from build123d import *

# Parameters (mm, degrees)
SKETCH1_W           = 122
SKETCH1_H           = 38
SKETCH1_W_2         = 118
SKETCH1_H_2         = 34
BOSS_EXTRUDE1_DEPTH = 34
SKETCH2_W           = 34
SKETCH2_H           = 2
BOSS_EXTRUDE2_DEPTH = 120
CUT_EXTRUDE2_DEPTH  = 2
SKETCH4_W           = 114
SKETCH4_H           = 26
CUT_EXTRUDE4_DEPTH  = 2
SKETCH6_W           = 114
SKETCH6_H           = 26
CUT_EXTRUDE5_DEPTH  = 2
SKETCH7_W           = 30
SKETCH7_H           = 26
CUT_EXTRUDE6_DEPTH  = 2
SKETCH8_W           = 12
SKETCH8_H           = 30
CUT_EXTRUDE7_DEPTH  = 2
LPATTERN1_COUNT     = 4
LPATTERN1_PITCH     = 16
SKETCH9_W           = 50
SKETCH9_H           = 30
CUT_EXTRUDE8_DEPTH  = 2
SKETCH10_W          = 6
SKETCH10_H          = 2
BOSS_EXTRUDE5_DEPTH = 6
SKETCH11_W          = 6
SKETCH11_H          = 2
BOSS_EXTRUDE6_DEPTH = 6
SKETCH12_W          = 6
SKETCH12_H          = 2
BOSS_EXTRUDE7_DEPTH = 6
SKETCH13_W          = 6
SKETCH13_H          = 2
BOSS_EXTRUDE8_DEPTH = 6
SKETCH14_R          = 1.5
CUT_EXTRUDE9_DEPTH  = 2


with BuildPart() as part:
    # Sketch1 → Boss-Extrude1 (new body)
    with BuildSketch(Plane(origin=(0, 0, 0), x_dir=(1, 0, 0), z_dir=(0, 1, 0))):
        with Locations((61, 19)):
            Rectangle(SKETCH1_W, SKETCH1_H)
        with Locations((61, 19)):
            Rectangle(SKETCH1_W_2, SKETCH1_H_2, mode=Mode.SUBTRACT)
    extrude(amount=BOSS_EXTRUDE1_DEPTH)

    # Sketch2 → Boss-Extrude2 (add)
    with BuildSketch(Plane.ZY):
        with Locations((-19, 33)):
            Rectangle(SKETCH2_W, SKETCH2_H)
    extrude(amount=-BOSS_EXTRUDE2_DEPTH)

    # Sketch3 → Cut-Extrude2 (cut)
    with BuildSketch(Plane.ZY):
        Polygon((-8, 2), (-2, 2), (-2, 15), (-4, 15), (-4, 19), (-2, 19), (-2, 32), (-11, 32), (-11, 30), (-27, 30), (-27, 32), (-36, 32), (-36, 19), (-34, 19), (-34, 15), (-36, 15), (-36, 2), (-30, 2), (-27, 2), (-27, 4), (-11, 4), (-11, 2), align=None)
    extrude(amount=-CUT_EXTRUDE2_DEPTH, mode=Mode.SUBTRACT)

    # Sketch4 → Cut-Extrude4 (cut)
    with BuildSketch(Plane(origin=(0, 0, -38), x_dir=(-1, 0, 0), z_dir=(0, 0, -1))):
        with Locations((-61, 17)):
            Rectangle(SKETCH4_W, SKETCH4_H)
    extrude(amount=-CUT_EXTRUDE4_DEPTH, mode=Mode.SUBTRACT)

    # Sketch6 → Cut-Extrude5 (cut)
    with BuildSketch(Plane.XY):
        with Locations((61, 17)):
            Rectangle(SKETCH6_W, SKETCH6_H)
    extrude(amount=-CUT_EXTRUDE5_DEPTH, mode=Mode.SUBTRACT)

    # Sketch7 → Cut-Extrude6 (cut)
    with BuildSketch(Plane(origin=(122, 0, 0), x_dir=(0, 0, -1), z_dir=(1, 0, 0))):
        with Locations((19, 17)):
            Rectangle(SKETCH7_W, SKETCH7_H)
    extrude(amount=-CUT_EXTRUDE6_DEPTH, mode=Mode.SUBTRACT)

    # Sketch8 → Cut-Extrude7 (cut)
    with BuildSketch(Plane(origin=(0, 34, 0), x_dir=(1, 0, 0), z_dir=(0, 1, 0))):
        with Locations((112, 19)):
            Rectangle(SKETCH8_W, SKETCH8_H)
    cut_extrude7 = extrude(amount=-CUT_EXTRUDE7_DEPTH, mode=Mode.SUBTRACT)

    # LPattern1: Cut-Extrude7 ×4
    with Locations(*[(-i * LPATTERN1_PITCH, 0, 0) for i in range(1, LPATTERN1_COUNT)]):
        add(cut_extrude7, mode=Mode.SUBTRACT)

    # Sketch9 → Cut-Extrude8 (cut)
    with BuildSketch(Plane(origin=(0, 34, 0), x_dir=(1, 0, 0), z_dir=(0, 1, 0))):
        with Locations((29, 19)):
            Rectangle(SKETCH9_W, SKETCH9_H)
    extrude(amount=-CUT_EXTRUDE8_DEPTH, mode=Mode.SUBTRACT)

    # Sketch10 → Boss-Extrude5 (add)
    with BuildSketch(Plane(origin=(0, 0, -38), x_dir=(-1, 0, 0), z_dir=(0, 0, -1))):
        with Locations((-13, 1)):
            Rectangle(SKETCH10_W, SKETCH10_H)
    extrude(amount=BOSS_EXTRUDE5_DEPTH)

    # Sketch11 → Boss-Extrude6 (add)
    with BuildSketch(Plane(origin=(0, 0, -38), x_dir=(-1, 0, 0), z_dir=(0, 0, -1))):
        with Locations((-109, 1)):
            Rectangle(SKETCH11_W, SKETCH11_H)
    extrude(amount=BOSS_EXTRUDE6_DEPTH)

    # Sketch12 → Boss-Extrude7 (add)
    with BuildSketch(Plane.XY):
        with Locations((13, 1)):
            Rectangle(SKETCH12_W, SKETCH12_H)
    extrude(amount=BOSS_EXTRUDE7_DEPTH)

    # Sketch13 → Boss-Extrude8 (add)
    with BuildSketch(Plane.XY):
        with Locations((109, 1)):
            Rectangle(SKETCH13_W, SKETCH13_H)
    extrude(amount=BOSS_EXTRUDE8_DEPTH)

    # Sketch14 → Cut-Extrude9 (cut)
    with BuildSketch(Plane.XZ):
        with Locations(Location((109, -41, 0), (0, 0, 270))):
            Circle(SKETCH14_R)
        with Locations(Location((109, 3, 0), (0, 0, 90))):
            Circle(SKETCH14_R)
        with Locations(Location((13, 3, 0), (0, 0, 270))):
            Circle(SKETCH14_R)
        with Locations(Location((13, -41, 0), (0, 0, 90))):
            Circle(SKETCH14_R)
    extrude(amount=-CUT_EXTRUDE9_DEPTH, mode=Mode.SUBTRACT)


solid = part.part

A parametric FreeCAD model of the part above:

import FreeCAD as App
import Part
import Sketcher

V = App.Vector
Q = App.Units.Quantity


def add_polygon(sketch, points):
    """Adds a closed chain of lines whose ends are joined by coincident constraints."""
    first, n = sketch.GeometryCount, len(points)
    for a, b in zip(points, points[1:] + points[:1]):
        sketch.addGeometry(Part.LineSegment(App.Vector(*a, 0), App.Vector(*b, 0)), False)
    for i in range(n):
        sketch.addConstraint(Sketcher.Constraint("Coincident", first + i, 2, first + (i + 1) % n, 1))

doc = App.newDocument("Part")
body = doc.addObject("PartDesign::Body", "Body")

# Sketch on XZ plane
sketch1 = doc.addObject("Sketcher::SketchObject", "Sketch")
body.addObject(sketch1)
sketch1.AttachmentSupport = (doc.XZ_Plane, [""])
sketch1.MapMode = "FlatFace"
add_polygon(sketch1, [(0, -38), (0, 0), (122, 0), (122, -38)])  # lines 0-3
add_polygon(sketch1, [(120, -2), (2, -2), (2, -36), (120, -36)])  # lines 4-7
sketch1.addConstraint(Sketcher.Constraint("Vertical", 0))
sketch1.addConstraint(Sketcher.Constraint("Horizontal", 1))
sketch1.addConstraint(Sketcher.Constraint("Vertical", 2))
sketch1.addConstraint(Sketcher.Constraint("Horizontal", 3))
sketch1.addConstraint(Sketcher.Constraint("Horizontal", 4))
sketch1.addConstraint(Sketcher.Constraint("Vertical", 5))
sketch1.addConstraint(Sketcher.Constraint("Horizontal", 6))
sketch1.addConstraint(Sketcher.Constraint("Vertical", 7))
sketch1.addConstraint(Sketcher.Constraint("Coincident", 0, 2, -1, 1))
sketch1.addConstraint(Sketcher.Constraint("DistanceX", 1, 1, 1, 2, Q("122 mm")))
sketch1.addConstraint(Sketcher.Constraint("DistanceX", 4, 2, 4, 1, Q("118 mm")))
sketch1.addConstraint(Sketcher.Constraint("DistanceY", 0, 1, 0, 2, Q("38 mm")))
sketch1.addConstraint(Sketcher.Constraint("DistanceY", 5, 2, 5, 1, Q("34 mm")))
sketch1.addConstraint(Sketcher.Constraint("DistanceX", -1, 1, 4, 2, Q("2 mm")))
sketch1.addConstraint(Sketcher.Constraint("DistanceY", 4, 2, -1, 1, Q("2 mm")))
pad1 = doc.addObject("PartDesign::Pad", "Pad")
body.addObject(pad1)
pad1.Profile = sketch1
pad1.Length = 34
pad1.Reversed = True

# Sketch on YZ plane
sketch2 = doc.addObject("Sketcher::SketchObject", "Sketch001")
body.addObject(sketch2)
sketch2.AttachmentSupport = (doc.YZ_Plane, [""])
sketch2.MapMode = "FlatFace"
add_polygon(sketch2, [(34, -36), (32, -36), (32, -2), (34, -2)])  # lines 0-3
sketch2.addConstraint(Sketcher.Constraint("Horizontal", 0))
sketch2.addConstraint(Sketcher.Constraint("Vertical", 1))
sketch2.addConstraint(Sketcher.Constraint("Horizontal", 2))
sketch2.addConstraint(Sketcher.Constraint("Vertical", 3))
sketch2.addConstraint(Sketcher.Constraint("DistanceX", 0, 2, 0, 1, Q("2 mm")))
sketch2.addConstraint(Sketcher.Constraint("DistanceY", 1, 1, 1, 2, Q("34 mm")))
sketch2.addConstraint(Sketcher.Constraint("DistanceX", -1, 1, 0, 2, Q("32 mm")))
sketch2.addConstraint(Sketcher.Constraint("DistanceY", 0, 2, -1, 1, Q("36 mm")))
pad2 = doc.addObject("PartDesign::Pad", "Pad001")
body.addObject(pad2)
pad2.Profile = sketch2
pad2.Length = 120

# Sketch on YZ plane
sketch3 = doc.addObject("Sketcher::SketchObject", "Sketch002")
body.addObject(sketch3)
sketch3.AttachmentSupport = (doc.YZ_Plane, [""])
sketch3.MapMode = "FlatFace"
add_polygon(sketch3, [(2, -2), (15, -2), (15, -4), (19, -4), (19, -2), (32, -2), (32, -11), (30, -11), (30, -27), (32, -27), (32, -36), (19, -36), (19, -34), (15, -34), (15, -36), (2, -36), (2, -27), (4, -27), (4, -11), (2, -11)])  # lines 0-19
sketch3.addConstraint(Sketcher.Constraint("Horizontal", 0))
sketch3.addConstraint(Sketcher.Constraint("Vertical", 1))
sketch3.addConstraint(Sketcher.Constraint("Horizontal", 2))
sketch3.addConstraint(Sketcher.Constraint("Vertical", 3))
sketch3.addConstraint(Sketcher.Constraint("Horizontal", 4))
sketch3.addConstraint(Sketcher.Constraint("Vertical", 5))
sketch3.addConstraint(Sketcher.Constraint("Horizontal", 6))
sketch3.addConstraint(Sketcher.Constraint("Vertical", 7))
sketch3.addConstraint(Sketcher.Constraint("Horizontal", 8))
sketch3.addConstraint(Sketcher.Constraint("Vertical", 9))
sketch3.addConstraint(Sketcher.Constraint("Horizontal", 10))
sketch3.addConstraint(Sketcher.Constraint("Vertical", 11))
sketch3.addConstraint(Sketcher.Constraint("Horizontal", 12))
sketch3.addConstraint(Sketcher.Constraint("Vertical", 13))
sketch3.addConstraint(Sketcher.Constraint("Horizontal", 14))
sketch3.addConstraint(Sketcher.Constraint("Vertical", 15))
sketch3.addConstraint(Sketcher.Constraint("Horizontal", 16))
sketch3.addConstraint(Sketcher.Constraint("Vertical", 17))
sketch3.addConstraint(Sketcher.Constraint("Horizontal", 18))
sketch3.addConstraint(Sketcher.Constraint("Vertical", 19))
sketch3.addConstraint(Sketcher.Constraint("Horizontal", 0, 2, 3, 2))
sketch3.addConstraint(Sketcher.Constraint("Horizontal", 10, 2, 13, 2))
sketch3.addConstraint(Sketcher.Constraint("Horizontal", 8, 2, 15, 2))
sketch3.addConstraint(Sketcher.Constraint("Horizontal", 6, 2, 17, 2))
sketch3.addConstraint(Sketcher.Constraint("Vertical", 5, 2, 8, 2))
sketch3.addConstraint(Sketcher.Constraint("Vertical", 3, 2, 10, 2))
sketch3.addConstraint(Sketcher.Constraint("Vertical", 1, 2, 12, 2))
sketch3.addConstraint(Sketcher.Constraint("Vertical", 15, 2, 18, 2))
sketch3.addConstraint(Sketcher.Constraint("Equal", 0, 4))
sketch3.addConstraint(Sketcher.Constraint("Equal", 8, 16))
sketch3.addConstraint(Sketcher.Constraint("Equal", 18, 1))
sketch3.addConstraint(Sketcher.Constraint("Equal", 5, 9))
sketch3.addConstraint(Sketcher.Constraint("Equal", 3, 11))
sketch3.addConstraint(Sketcher.Constraint("DistanceX", 0, 1, 0, 2, Q("13 mm")))
sketch3.addConstraint(Sketcher.Constraint("DistanceX", 2, 1, 2, 2, Q("4 mm")))
sketch3.addConstraint(Sketcher.Constraint("DistanceX", 6, 2, 6, 1, Q("2 mm")))
sketch3.addConstraint(Sketcher.Constraint("DistanceY", 5, 2, 5, 1, Q("9 mm")))
sketch3.addConstraint(Sketcher.Constraint("DistanceY", 7, 2, 7, 1, Q("16 mm")))
sketch3.addConstraint(Sketcher.Constraint("DistanceX", -1, 1, 0, 2, Q("15 mm")))
sketch3.addConstraint(Sketcher.Constraint("DistanceY", 0, 2, -1, 1, Q("2 mm")))
pocket1 = doc.addObject("PartDesign::Pocket", "Pocket")
body.addObject(pocket1)
pocket1.Profile = sketch3
pocket1.Length = 2
pocket1.Reversed = True

# Sketch on XY plane
sketch4 = doc.addObject("Sketcher::SketchObject", "Sketch003")
body.addObject(sketch4)
sketch4.AttachmentSupport = (doc.XY_Plane, [""])
sketch4.MapMode = "FlatFace"
sketch4.AttachmentOffset = App.Placement(V(0, 0, -38), App.Rotation())
add_polygon(sketch4, [(118, 30), (118, 4), (4, 4), (4, 30)])  # lines 0-3
sketch4.addConstraint(Sketcher.Constraint("Vertical", 0))
sketch4.addConstraint(Sketcher.Constraint("Horizontal", 1))
sketch4.addConstraint(Sketcher.Constraint("Vertical", 2))
sketch4.addConstraint(Sketcher.Constraint("Horizontal", 3))
sketch4.addConstraint(Sketcher.Constraint("DistanceX", 1, 2, 1, 1, Q("114 mm")))
sketch4.addConstraint(Sketcher.Constraint("DistanceY", 0, 2, 0, 1, Q("26 mm")))
sketch4.addConstraint(Sketcher.Constraint("DistanceX", -1, 1, 0, 2, Q("118 mm")))
sketch4.addConstraint(Sketcher.Constraint("DistanceY", -1, 1, 0, 2, Q("4 mm")))
pocket2 = doc.addObject("PartDesign::Pocket", "Pocket001")
body.addObject(pocket2)
pocket2.Profile = sketch4
pocket2.Length = 2
pocket2.Reversed = True

# Sketch on XY plane
sketch5 = doc.addObject("Sketcher::SketchObject", "Sketch004")
body.addObject(sketch5)
sketch5.AttachmentSupport = (doc.XY_Plane, [""])
sketch5.MapMode = "FlatFace"
add_polygon(sketch5, [(4, 30), (4, 4), (118, 4), (118, 30)])  # lines 0-3
sketch5.addConstraint(Sketcher.Constraint("Vertical", 0))
sketch5.addConstraint(Sketcher.Constraint("Horizontal", 1))
sketch5.addConstraint(Sketcher.Constraint("Vertical", 2))
sketch5.addConstraint(Sketcher.Constraint("Horizontal", 3))
sketch5.addConstraint(Sketcher.Constraint("DistanceX", 1, 1, 1, 2, Q("114 mm")))
sketch5.addConstraint(Sketcher.Constraint("DistanceY", 0, 2, 0, 1, Q("26 mm")))
sketch5.addConstraint(Sketcher.Constraint("DistanceX", -1, 1, 0, 2, Q("4 mm")))
sketch5.addConstraint(Sketcher.Constraint("DistanceY", -1, 1, 0, 2, Q("4 mm")))
pocket3 = doc.addObject("PartDesign::Pocket", "Pocket002")
body.addObject(pocket3)
pocket3.Profile = sketch5
pocket3.Length = 2

# Sketch on YZ plane
sketch6 = doc.addObject("Sketcher::SketchObject", "Sketch005")
body.addObject(sketch6)
sketch6.AttachmentSupport = (doc.YZ_Plane, [""])
sketch6.MapMode = "FlatFace"
sketch6.AttachmentOffset = App.Placement(V(0, 0, 122), App.Rotation())
add_polygon(sketch6, [(30, -4), (4, -4), (4, -34), (30, -34)])  # lines 0-3
sketch6.addConstraint(Sketcher.Constraint("Horizontal", 0))
sketch6.addConstraint(Sketcher.Constraint("Vertical", 1))
sketch6.addConstraint(Sketcher.Constraint("Horizontal", 2))
sketch6.addConstraint(Sketcher.Constraint("Vertical", 3))
sketch6.addConstraint(Sketcher.Constraint("DistanceX", 0, 2, 0, 1, Q("26 mm")))
sketch6.addConstraint(Sketcher.Constraint("DistanceY", 1, 2, 1, 1, Q("30 mm")))
sketch6.addConstraint(Sketcher.Constraint("DistanceX", -1, 1, 0, 2, Q("4 mm")))
sketch6.addConstraint(Sketcher.Constraint("DistanceY", 0, 2, -1, 1, Q("4 mm")))
pocket4 = doc.addObject("PartDesign::Pocket", "Pocket003")
body.addObject(pocket4)
pocket4.Profile = sketch6
pocket4.Length = 2

# Sketch on XZ plane
sketch7 = doc.addObject("Sketcher::SketchObject", "Sketch006")
body.addObject(sketch7)
sketch7.AttachmentSupport = (doc.XZ_Plane, [""])
sketch7.MapMode = "FlatFace"
sketch7.AttachmentOffset = App.Placement(V(0, 0, -34), App.Rotation())
add_polygon(sketch7, [(106, -34), (106, -4), (118, -4), (118, -34)])  # lines 0-3
sketch7.addConstraint(Sketcher.Constraint("Vertical", 0))
sketch7.addConstraint(Sketcher.Constraint("Horizontal", 1))
sketch7.addConstraint(Sketcher.Constraint("Vertical", 2))
sketch7.addConstraint(Sketcher.Constraint("Horizontal", 3))
sketch7.addConstraint(Sketcher.Constraint("DistanceX", 1, 1, 1, 2, Q("12 mm")))
sketch7.addConstraint(Sketcher.Constraint("DistanceY", 0, 1, 0, 2, Q("30 mm")))
sketch7.addConstraint(Sketcher.Constraint("DistanceX", -1, 1, 0, 2, Q("106 mm")))
sketch7.addConstraint(Sketcher.Constraint("DistanceY", 0, 2, -1, 1, Q("4 mm")))
pocket5 = doc.addObject("PartDesign::Pocket", "Pocket004")
body.addObject(pocket5)
pocket5.Profile = sketch7
pocket5.Length = 2
pocket5.Reversed = True
doc.recompute()

linearpattern = doc.addObject("PartDesign::LinearPattern", "LinearPattern")
body.addObject(linearpattern)
linearpattern.Originals = [pocket5]
linearpattern.Direction = (doc.X_Axis, [""])
linearpattern.Mode = "offset"
linearpattern.Offset = 16
linearpattern.Occurrences = 4
linearpattern.Reversed = True
body.Tip = linearpattern

# Sketch on XZ plane
sketch8 = doc.addObject("Sketcher::SketchObject", "Sketch007")
body.addObject(sketch8)
sketch8.AttachmentSupport = (doc.XZ_Plane, [""])
sketch8.MapMode = "FlatFace"
sketch8.AttachmentOffset = App.Placement(V(0, 0, -34), App.Rotation())
add_polygon(sketch8, [(4, -34), (4, -4), (54, -4), (54, -34)])  # lines 0-3
sketch8.addConstraint(Sketcher.Constraint("Vertical", 0))
sketch8.addConstraint(Sketcher.Constraint("Horizontal", 1))
sketch8.addConstraint(Sketcher.Constraint("Vertical", 2))
sketch8.addConstraint(Sketcher.Constraint("Horizontal", 3))
sketch8.addConstraint(Sketcher.Constraint("DistanceX", 1, 1, 1, 2, Q("50 mm")))
sketch8.addConstraint(Sketcher.Constraint("DistanceY", 0, 1, 0, 2, Q("30 mm")))
sketch8.addConstraint(Sketcher.Constraint("DistanceX", -1, 1, 0, 2, Q("4 mm")))
sketch8.addConstraint(Sketcher.Constraint("DistanceY", 0, 2, -1, 1, Q("4 mm")))
pocket6 = doc.addObject("PartDesign::Pocket", "Pocket005")
body.addObject(pocket6)
pocket6.Profile = sketch8
pocket6.Length = 2
pocket6.Reversed = True

# Sketch on XY plane
sketch9 = doc.addObject("Sketcher::SketchObject", "Sketch008")
body.addObject(sketch9)
sketch9.AttachmentSupport = (doc.XY_Plane, [""])
sketch9.MapMode = "FlatFace"
sketch9.AttachmentOffset = App.Placement(V(0, 0, -38), App.Rotation())
add_polygon(sketch9, [(16, 2), (16, 0), (10, 0), (10, 2)])  # lines 0-3
sketch9.addConstraint(Sketcher.Constraint("Vertical", 0))
sketch9.addConstraint(Sketcher.Constraint("Horizontal", 1))
sketch9.addConstraint(Sketcher.Constraint("Vertical", 2))
sketch9.addConstraint(Sketcher.Constraint("Horizontal", 3))
sketch9.addConstraint(Sketcher.Constraint("PointOnObject", 0, 2, -1))
sketch9.addConstraint(Sketcher.Constraint("DistanceX", 1, 2, 1, 1, Q("6 mm")))
sketch9.addConstraint(Sketcher.Constraint("DistanceY", 0, 2, 0, 1, Q("2 mm")))
sketch9.addConstraint(Sketcher.Constraint("DistanceX", -1, 1, 0, 2, Q("16 mm")))
pad3 = doc.addObject("PartDesign::Pad", "Pad002")
body.addObject(pad3)
pad3.Profile = sketch9
pad3.Length = 6
pad3.Reversed = True

# Sketch on XY plane
sketch10 = doc.addObject("Sketcher::SketchObject", "Sketch009")
body.addObject(sketch10)
sketch10.AttachmentSupport = (doc.XY_Plane, [""])
sketch10.MapMode = "FlatFace"
sketch10.AttachmentOffset = App.Placement(V(0, 0, -38), App.Rotation())
add_polygon(sketch10, [(112, 2), (112, 0), (106, 0), (106, 2)])  # lines 0-3
sketch10.addConstraint(Sketcher.Constraint("Vertical", 0))
sketch10.addConstraint(Sketcher.Constraint("Horizontal", 1))
sketch10.addConstraint(Sketcher.Constraint("Vertical", 2))
sketch10.addConstraint(Sketcher.Constraint("Horizontal", 3))
sketch10.addConstraint(Sketcher.Constraint("PointOnObject", 0, 2, -1))
sketch10.addConstraint(Sketcher.Constraint("DistanceX", 1, 2, 1, 1, Q("6 mm")))
sketch10.addConstraint(Sketcher.Constraint("DistanceY", 0, 2, 0, 1, Q("2 mm")))
sketch10.addConstraint(Sketcher.Constraint("DistanceX", -1, 1, 0, 2, Q("112 mm")))
pad4 = doc.addObject("PartDesign::Pad", "Pad003")
body.addObject(pad4)
pad4.Profile = sketch10
pad4.Length = 6
pad4.Reversed = True

# Sketch on XY plane
sketch11 = doc.addObject("Sketcher::SketchObject", "Sketch010")
body.addObject(sketch11)
sketch11.AttachmentSupport = (doc.XY_Plane, [""])
sketch11.MapMode = "FlatFace"
add_polygon(sketch11, [(10, 2), (10, 0), (16, 0), (16, 2)])  # lines 0-3
sketch11.addConstraint(Sketcher.Constraint("Vertical", 0))
sketch11.addConstraint(Sketcher.Constraint("Horizontal", 1))
sketch11.addConstraint(Sketcher.Constraint("Vertical", 2))
sketch11.addConstraint(Sketcher.Constraint("Horizontal", 3))
sketch11.addConstraint(Sketcher.Constraint("PointOnObject", 0, 2, -1))
sketch11.addConstraint(Sketcher.Constraint("DistanceX", 1, 1, 1, 2, Q("6 mm")))
sketch11.addConstraint(Sketcher.Constraint("DistanceY", 0, 2, 0, 1, Q("2 mm")))
sketch11.addConstraint(Sketcher.Constraint("DistanceX", -1, 1, 0, 2, Q("10 mm")))
pad5 = doc.addObject("PartDesign::Pad", "Pad004")
body.addObject(pad5)
pad5.Profile = sketch11
pad5.Length = 6

# Sketch on XY plane
sketch12 = doc.addObject("Sketcher::SketchObject", "Sketch011")
body.addObject(sketch12)
sketch12.AttachmentSupport = (doc.XY_Plane, [""])
sketch12.MapMode = "FlatFace"
add_polygon(sketch12, [(106, 2), (106, 0), (112, 0), (112, 2)])  # lines 0-3
sketch12.addConstraint(Sketcher.Constraint("Vertical", 0))
sketch12.addConstraint(Sketcher.Constraint("Horizontal", 1))
sketch12.addConstraint(Sketcher.Constraint("Vertical", 2))
sketch12.addConstraint(Sketcher.Constraint("Horizontal", 3))
sketch12.addConstraint(Sketcher.Constraint("PointOnObject", 0, 2, -1))
sketch12.addConstraint(Sketcher.Constraint("DistanceX", 1, 1, 1, 2, Q("6 mm")))
sketch12.addConstraint(Sketcher.Constraint("DistanceY", 0, 2, 0, 1, Q("2 mm")))
sketch12.addConstraint(Sketcher.Constraint("DistanceX", -1, 1, 0, 2, Q("106 mm")))
pad6 = doc.addObject("PartDesign::Pad", "Pad005")
body.addObject(pad6)
pad6.Profile = sketch12
pad6.Length = 6

# Sketch on XZ plane
sketch13 = doc.addObject("Sketcher::SketchObject", "Sketch012")
body.addObject(sketch13)
sketch13.AttachmentSupport = (doc.XZ_Plane, [""])
sketch13.MapMode = "FlatFace"
sketch13.addGeometry(Part.Circle(V(109, -41, 0), V(0, 0, 1), 1.5), False)
sketch13.addGeometry(Part.Circle(V(109, 3, 0), V(0, 0, 1), 1.5), False)
sketch13.addGeometry(Part.Circle(V(13, 3, 0), V(0, 0, 1), 1.5), False)
sketch13.addGeometry(Part.Circle(V(13, -41, 0), V(0, 0, 1), 1.5), False)
sketch13.addConstraint(Sketcher.Constraint("Equal", 0, 1))
sketch13.addConstraint(Sketcher.Constraint("Equal", 1, 2))
sketch13.addConstraint(Sketcher.Constraint("Equal", 2, 3))
sketch13.addConstraint(Sketcher.Constraint("Horizontal", 1, 3, 2, 3))
sketch13.addConstraint(Sketcher.Constraint("Horizontal", 0, 3, 3, 3))
sketch13.addConstraint(Sketcher.Constraint("Vertical", 0, 3, 1, 3))
sketch13.addConstraint(Sketcher.Constraint("Vertical", 2, 3, 3, 3))
sketch13.addConstraint(Sketcher.Constraint("Diameter", 0, Q("3 mm")))
sketch13.addConstraint(Sketcher.Constraint("DistanceX", -1, 1, 0, 3, Q("109 mm")))
sketch13.addConstraint(Sketcher.Constraint("DistanceY", 0, 3, -1, 1, Q("41 mm")))
sketch13.addConstraint(Sketcher.Constraint("DistanceY", -1, 1, 1, 3, Q("3 mm")))
sketch13.addConstraint(Sketcher.Constraint("DistanceX", -1, 1, 2, 3, Q("13 mm")))
pocket7 = doc.addObject("PartDesign::Pocket", "Pocket006")
body.addObject(pocket7)
pocket7.Profile = sketch13
pocket7.Length = 2

doc.recompute()
